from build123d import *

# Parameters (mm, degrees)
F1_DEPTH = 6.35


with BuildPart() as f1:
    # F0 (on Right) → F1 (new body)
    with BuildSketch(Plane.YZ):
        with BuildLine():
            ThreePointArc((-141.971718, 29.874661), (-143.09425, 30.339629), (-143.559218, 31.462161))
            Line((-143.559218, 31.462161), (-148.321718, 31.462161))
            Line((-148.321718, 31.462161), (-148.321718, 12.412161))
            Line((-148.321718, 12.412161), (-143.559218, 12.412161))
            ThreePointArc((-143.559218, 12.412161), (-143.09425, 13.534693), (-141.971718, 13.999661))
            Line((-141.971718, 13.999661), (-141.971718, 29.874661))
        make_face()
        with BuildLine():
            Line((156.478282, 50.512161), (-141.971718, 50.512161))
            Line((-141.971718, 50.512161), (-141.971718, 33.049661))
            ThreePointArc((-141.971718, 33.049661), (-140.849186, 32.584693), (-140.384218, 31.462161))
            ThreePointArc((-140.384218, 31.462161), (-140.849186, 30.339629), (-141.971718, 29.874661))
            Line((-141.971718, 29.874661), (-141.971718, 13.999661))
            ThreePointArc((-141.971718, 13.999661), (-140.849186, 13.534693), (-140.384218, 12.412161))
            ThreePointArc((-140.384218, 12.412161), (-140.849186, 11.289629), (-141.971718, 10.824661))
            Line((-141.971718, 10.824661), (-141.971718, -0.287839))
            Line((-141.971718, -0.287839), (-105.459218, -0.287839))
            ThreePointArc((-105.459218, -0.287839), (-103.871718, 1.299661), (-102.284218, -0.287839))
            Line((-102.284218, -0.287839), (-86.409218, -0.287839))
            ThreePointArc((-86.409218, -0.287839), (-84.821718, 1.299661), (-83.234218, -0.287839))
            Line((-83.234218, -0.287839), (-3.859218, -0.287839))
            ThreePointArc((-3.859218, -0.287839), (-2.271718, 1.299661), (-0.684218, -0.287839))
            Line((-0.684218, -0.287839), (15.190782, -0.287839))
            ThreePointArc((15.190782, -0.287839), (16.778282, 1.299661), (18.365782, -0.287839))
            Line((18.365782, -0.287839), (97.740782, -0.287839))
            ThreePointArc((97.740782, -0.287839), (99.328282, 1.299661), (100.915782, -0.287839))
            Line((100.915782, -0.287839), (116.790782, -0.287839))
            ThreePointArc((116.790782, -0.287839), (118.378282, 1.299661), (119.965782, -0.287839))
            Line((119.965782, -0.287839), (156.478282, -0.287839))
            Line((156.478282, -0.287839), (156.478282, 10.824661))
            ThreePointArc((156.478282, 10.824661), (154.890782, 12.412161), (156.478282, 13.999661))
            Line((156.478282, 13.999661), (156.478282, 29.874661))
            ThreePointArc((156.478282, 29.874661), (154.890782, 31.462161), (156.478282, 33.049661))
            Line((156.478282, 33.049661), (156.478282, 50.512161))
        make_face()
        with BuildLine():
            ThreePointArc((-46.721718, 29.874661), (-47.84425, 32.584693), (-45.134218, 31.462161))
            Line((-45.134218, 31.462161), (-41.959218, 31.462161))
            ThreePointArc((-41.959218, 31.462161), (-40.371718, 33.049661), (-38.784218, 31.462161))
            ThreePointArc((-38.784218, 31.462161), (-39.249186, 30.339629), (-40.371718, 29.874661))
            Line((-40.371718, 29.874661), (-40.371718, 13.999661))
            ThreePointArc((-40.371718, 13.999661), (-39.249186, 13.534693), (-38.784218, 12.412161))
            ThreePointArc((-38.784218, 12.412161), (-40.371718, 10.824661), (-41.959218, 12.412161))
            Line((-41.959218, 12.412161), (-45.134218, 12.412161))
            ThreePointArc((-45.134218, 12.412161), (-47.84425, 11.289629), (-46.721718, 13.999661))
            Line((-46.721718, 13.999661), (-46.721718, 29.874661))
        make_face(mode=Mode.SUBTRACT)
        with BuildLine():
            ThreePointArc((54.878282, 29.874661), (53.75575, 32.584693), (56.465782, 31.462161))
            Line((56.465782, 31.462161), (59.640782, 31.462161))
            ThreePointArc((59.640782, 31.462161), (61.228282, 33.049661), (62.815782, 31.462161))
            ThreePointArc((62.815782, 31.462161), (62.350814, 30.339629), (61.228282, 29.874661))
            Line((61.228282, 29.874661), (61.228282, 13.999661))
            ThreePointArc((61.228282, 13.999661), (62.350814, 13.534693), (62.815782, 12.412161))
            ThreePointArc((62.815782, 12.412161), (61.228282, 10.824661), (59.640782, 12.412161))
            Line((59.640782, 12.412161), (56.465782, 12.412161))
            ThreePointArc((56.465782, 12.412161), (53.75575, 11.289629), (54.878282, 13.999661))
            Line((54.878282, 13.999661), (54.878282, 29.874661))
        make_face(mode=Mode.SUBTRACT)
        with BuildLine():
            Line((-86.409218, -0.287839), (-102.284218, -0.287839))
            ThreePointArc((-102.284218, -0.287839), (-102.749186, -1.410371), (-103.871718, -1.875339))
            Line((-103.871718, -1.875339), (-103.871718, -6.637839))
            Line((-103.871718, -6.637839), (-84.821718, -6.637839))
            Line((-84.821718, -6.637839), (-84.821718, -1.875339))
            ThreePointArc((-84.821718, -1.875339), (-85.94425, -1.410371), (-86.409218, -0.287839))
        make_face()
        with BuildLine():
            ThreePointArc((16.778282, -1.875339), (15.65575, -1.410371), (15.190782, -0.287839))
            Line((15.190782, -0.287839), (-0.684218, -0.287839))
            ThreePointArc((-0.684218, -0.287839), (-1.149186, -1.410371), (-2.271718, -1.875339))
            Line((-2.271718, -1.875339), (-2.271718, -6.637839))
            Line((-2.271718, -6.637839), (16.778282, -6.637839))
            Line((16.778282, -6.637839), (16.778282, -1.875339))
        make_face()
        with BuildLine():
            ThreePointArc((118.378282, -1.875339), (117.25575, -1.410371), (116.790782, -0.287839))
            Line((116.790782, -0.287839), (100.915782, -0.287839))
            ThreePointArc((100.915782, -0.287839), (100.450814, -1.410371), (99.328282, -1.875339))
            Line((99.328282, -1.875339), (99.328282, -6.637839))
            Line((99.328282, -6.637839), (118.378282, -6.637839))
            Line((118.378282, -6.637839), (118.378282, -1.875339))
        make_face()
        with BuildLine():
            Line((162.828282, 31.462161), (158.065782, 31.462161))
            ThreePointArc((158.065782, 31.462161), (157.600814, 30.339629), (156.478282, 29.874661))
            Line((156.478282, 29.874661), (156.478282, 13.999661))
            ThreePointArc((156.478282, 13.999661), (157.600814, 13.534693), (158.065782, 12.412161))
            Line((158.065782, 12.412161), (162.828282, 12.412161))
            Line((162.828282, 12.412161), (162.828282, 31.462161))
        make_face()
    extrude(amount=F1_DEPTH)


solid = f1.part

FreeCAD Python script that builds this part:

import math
import FreeCAD as App
import Part
import Sketcher
Q = App.Units.Quantity

doc = App.newDocument("Part")
params = doc.addObject("Spreadsheet::Sheet", "Params")
for row, (alias, value) in enumerate([
    ("sketch1_radius", "0.0625 in"),
    ("sketch1_width", "0.75 in"),
    ("sketch1_width2", "11.75 in"),
    ("sketch1_width3", "0.1875 in"),
    ("sketch1_width4", "1.4375 in"),
    ("pad1_length", "0.25 in"),
], start=1):
    params.set(f"A{row}", alias)
    params.set(f"B{row}", "=" + value)
    params.setAlias(f"B{row}", alias)

body = doc.addObject("PartDesign::Body", "Body")

sketch1 = body.newObject("Sketcher::SketchObject", "Sketch")
sketch1.AttachmentSupport = (doc.getObject("YZ_Plane"), [""])
sketch1.MapMode = "FlatFace"
sketch1.addGeometry(Part.ArcOfCircle(Part.Circle(App.Vector(-142, 31.5, 0), App.Vector(0, 0, 1), 1.6), math.radians(-180), math.radians(-90)), False)
sketch1.addGeometry(Part.LineSegment(App.Vector(-143.6, 31.5, 0), App.Vector(-148.3, 31.5, 0)), False)
sketch1.addGeometry(Part.LineSegment(App.Vector(-148.3, 31.5, 0), App.Vector(-148.3, 12.4, 0)), False)
sketch1.addGeometry(Part.LineSegment(App.Vector(-148.3, 12.4, 0), App.Vector(-143.6, 12.4, 0)), False)
sketch1.addGeometry(Part.ArcOfCircle(Part.Circle(App.Vector(-142, 12.4, 0), App.Vector(0, 0, 1), 1.6), math.radians(90), math.radians(180)), False)
sketch1.addGeometry(Part.ArcOfCircle(Part.Circle(App.Vector(-142, 12.4, 0), App.Vector(0, 0, 1), 1.6), math.radians(0), math.radians(90)), False)
sketch1.addGeometry(Part.ArcOfCircle(Part.Circle(App.Vector(-142, 12.4, 0), App.Vector(0, 0, 1), 1.6), math.radians(-90), math.radians(0)), False)
sketch1.addGeometry(Part.LineSegment(App.Vector(-142, 10.8, 0), App.Vector(-142, -0.3, 0)), False)
sketch1.addGeometry(Part.LineSegment(App.Vector(-142, -0.3, 0), App.Vector(-105.5, -0.3, 0)), False)
sketch1.addGeometry(Part.ArcOfCircle(Part.Circle(App.Vector(-103.9, -0.3, 0), App.Vector(0, 0, 1), 1.6), math.radians(0), math.radians(180)), False)
sketch1.addGeometry(Part.ArcOfCircle(Part.Circle(App.Vector(-103.9, -0.3, 0), App.Vector(0, 0, 1), 1.6), math.radians(-90), math.radians(0)), False)
sketch1.addGeometry(Part.LineSegment(App.Vector(-103.9, -1.9, 0), App.Vector(-103.9, -6.6, 0)), False)
sketch1.addGeometry(Part.LineSegment(App.Vector(-103.9, -6.6, 0), App.Vector(-84.8, -6.6, 0)), False)
sketch1.addGeometry(Part.LineSegment(App.Vector(-84.8, -6.6, 0), App.Vector(-84.8, -1.9, 0)), False)
sketch1.addGeometry(Part.ArcOfCircle(Part.Circle(App.Vector(-84.8, -0.3, 0), App.Vector(0, 0, 1), 1.6), math.radians(-180), math.radians(-90)), False)
sketch1.addGeometry(Part.ArcOfCircle(Part.Circle(App.Vector(-84.8, -0.3, 0), App.Vector(0, 0, 1), 1.6), math.radians(0), math.radians(180)), False)
sketch1.addGeometry(Part.LineSegment(App.Vector(-83.2, -0.3, 0), App.Vector(-3.9, -0.3, 0)), False)
sketch1.addGeometry(Part.ArcOfCircle(Part.Circle(App.Vector(-2.3, -0.3, 0), App.Vector(0, 0, 1), 1.6), math.radians(0), math.radians(180)), False)
sketch1.addGeometry(Part.ArcOfCircle(Part.Circle(App.Vector(-2.3, -0.3, 0), App.Vector(0, 0, 1), 1.6), math.radians(-90), math.radians(0)), False)
sketch1.addGeometry(Part.LineSegment(App.Vector(-2.3, -1.9, 0), App.Vector(-2.3, -6.6, 0)), False)
sketch1.addGeometry(Part.LineSegment(App.Vector(-2.3, -6.6, 0), App.Vector(16.8, -6.6, 0)), False)
sketch1.addGeometry(Part.LineSegment(App.Vector(16.8, -6.6, 0), App.Vector(16.8, -1.9, 0)), False)
sketch1.addGeometry(Part.ArcOfCircle(Part.Circle(App.Vector(16.8, -0.3, 0), App.Vector(0, 0, 1), 1.6), math.radians(-180), math.radians(-90)), False)
sketch1.addGeometry(Part.ArcOfCircle(Part.Circle(App.Vector(16.8, -0.3, 0), App.Vector(0, 0, 1), 1.6), math.radians(0), math.radians(180)), False)
sketch1.addGeometry(Part.LineSegment(App.Vector(18.4, -0.3, 0), App.Vector(97.7, -0.3, 0)), False)
sketch1.addGeometry(Part.ArcOfCircle(Part.Circle(App.Vector(99.3, -0.3, 0), App.Vector(0, 0, 1), 1.6), math.radians(0), math.radians(180)), False)
sketch1.addGeometry(Part.ArcOfCircle(Part.Circle(App.Vector(99.3, -0.3, 0), App.Vector(0, 0, 1), 1.6), math.radians(-90), math.radians(0)), False)
sketch1.addGeometry(Part.LineSegment(App.Vector(99.3, -1.9, 0), App.Vector(99.3, -6.6, 0)), False)
sketch1.addGeometry(Part.LineSegment(App.Vector(99.3, -6.6, 0), App.Vector(118.4, -6.6, 0)), False)
sketch1.addGeometry(Part.LineSegment(App.Vector(118.4, -6.6, 0), App.Vector(118.4, -1.9, 0)), False)
sketch1.addGeometry(Part.ArcOfCircle(Part.Circle(App.Vector(118.4, -0.3, 0), App.Vector(0, 0, 1), 1.6), math.radians(-180), math.radians(-90)), False)
sketch1.addGeometry(Part.ArcOfCircle(Part.Circle(App.Vector(118.4, -0.3, 0), App.Vector(0, 0, 1), 1.6), math.radians(0), math.radians(180)), False)
sketch1.addGeometry(Part.LineSegment(App.Vector(120, -0.3, 0), App.Vector(156.5, -0.3, 0)), False)
sketch1.addGeometry(Part.LineSegment(App.Vector(156.5, -0.3, 0), App.Vector(156.5, 10.8, 0)), False)
sketch1.addGeometry(Part.ArcOfCircle(Part.Circle(App.Vector(156.5, 12.4, 0), App.Vector(0, 0, 1), 1.6), math.radians(90), math.radians(270)), False)
sketch1.addGeometry(Part.ArcOfCircle(Part.Circle(App.Vector(156.5, 12.4, 0), App.Vector(0, 0, 1), 1.6), math.radians(0), math.radians(90)), False)
sketch1.addGeometry(Part.LineSegment(App.Vector(158.1, 12.4, 0), App.Vector(162.8, 12.4, 0)), False)
sketch1.addGeometry(Part.LineSegment(App.Vector(162.8, 12.4, 0), App.Vector(162.8, 31.5, 0)), False)
sketch1.addGeometry(Part.LineSegment(App.Vector(162.8, 31.5, 0), App.Vector(158.1, 31.5, 0)), False)
sketch1.addGeometry(Part.ArcOfCircle(Part.Circle(App.Vector(156.5, 31.5, 0), App.Vector(0, 0, 1), 1.6), math.radians(-90), math.radians(0)), False)
sketch1.addGeometry(Part.ArcOfCircle(Part.Circle(App.Vector(156.5, 31.5, 0), App.Vector(0, 0, 1), 1.6), math.radians(90), math.radians(270)), False)
sketch1.addGeometry(Part.LineSegment(App.Vector(156.5, 33, 0), App.Vector(156.5, 50.5, 0)), False)
sketch1.addGeometry(Part.LineSegment(App.Vector(156.5, 50.5, 0), App.Vector(-142, 50.5, 0)), False)
sketch1.addGeometry(Part.LineSegment(App.Vector(-142, 50.5, 0), App.Vector(-142, 33, 0)), False)
sketch1.addGeometry(Part.ArcOfCircle(Part.Circle(App.Vector(-142, 31.5, 0), App.Vector(0, 0, 1), 1.6), math.radians(0), math.radians(90)), False)
sketch1.addGeometry(Part.ArcOfCircle(Part.Circle(App.Vector(-142, 31.5, 0), App.Vector(0, 0, 1), 1.6), math.radians(-90), math.radians(0)), False)
sketch1.addGeometry(Part.LineSegment(App.Vector(-46.7, 14, 0), App.Vector(-46.7, 29.9, 0)), False)
sketch1.addGeometry(Part.ArcOfCircle(Part.Circle(App.Vector(-46.7, 31.5, 0), App.Vector(0, 0, 1), 1.6), math.radians(0), math.radians(270)), False)
sketch1.addGeometry(Part.LineSegment(App.Vector(-45.1, 31.5, 0), App.Vector(-42, 31.5, 0)), False)
sketch1.addGeometry(Part.ArcOfCircle(Part.Circle(App.Vector(-40.4, 31.5, 0), App.Vector(0, 0, 1), 1.6), math.radians(0), math.radians(180)), False)
sketch1.addGeometry(Part.ArcOfCircle(Part.Circle(App.Vector(-40.4, 31.5, 0), App.Vector(0, 0, 1), 1.6), math.radians(-90), math.radians(0)), False)
sketch1.addGeometry(Part.LineSegment(App.Vector(-40.4, 29.9, 0), App.Vector(-40.4, 14, 0)), False)
sketch1.addGeometry(Part.ArcOfCircle(Part.Circle(App.Vector(-40.4, 12.4, 0), App.Vector(0, 0, 1), 1.6), math.radians(0), math.radians(90)), False)
sketch1.addGeometry(Part.ArcOfCircle(Part.Circle(App.Vector(-40.4, 12.4, 0), App.Vector(0, 0, 1), 1.6), math.radians(180), math.radians(360)), False)
sketch1.addGeometry(Part.LineSegment(App.Vector(-42, 12.4, 0), App.Vector(-45.1, 12.4, 0)), False)
sketch1.addGeometry(Part.ArcOfCircle(Part.Circle(App.Vector(-46.7, 12.4, 0), App.Vector(0, 0, 1), 1.6), math.radians(90), math.radians(360)), False)
sketch1.addGeometry(Part.LineSegment(App.Vector(54.9, 14, 0), App.Vector(54.9, 29.9, 0)), False)
sketch1.addGeometry(Part.ArcOfCircle(Part.Circle(App.Vector(54.9, 31.5, 0), App.Vector(0, 0, 1), 1.6), math.radians(0), math.radians(270)), False)
sketch1.addGeometry(Part.LineSegment(App.Vector(56.5, 31.5, 0), App.Vector(59.6, 31.5, 0)), False)
sketch1.addGeometry(Part.ArcOfCircle(Part.Circle(App.Vector(61.2, 31.5, 0), App.Vector(0, 0, 1), 1.6), math.radians(0), math.radians(180)), False)
sketch1.addGeometry(Part.ArcOfCircle(Part.Circle(App.Vector(61.2, 31.5, 0), App.Vector(0, 0, 1), 1.6), math.radians(-90), math.radians(0)), False)
sketch1.addGeometry(Part.LineSegment(App.Vector(61.2, 29.9, 0), App.Vector(61.2, 14, 0)), False)
sketch1.addGeometry(Part.ArcOfCircle(Part.Circle(App.Vector(61.2, 12.4, 0), App.Vector(0, 0, 1), 1.6), math.radians(0), math.radians(90)), False)
sketch1.addGeometry(Part.ArcOfCircle(Part.Circle(App.Vector(61.2, 12.4, 0), App.Vector(0, 0, 1), 1.6), math.radians(180), math.radians(360)), False)
sketch1.addGeometry(Part.LineSegment(App.Vector(59.6, 12.4, 0), App.Vector(56.5, 12.4, 0)), False)
sketch1.addGeometry(Part.ArcOfCircle(Part.Circle(App.Vector(54.9, 12.4, 0), App.Vector(0, 0, 1), 1.6), math.radians(90), math.radians(360)), False)
sketch1.addConstraint(Sketcher.Constraint("Coincident", 0, 1, 1, 1))
sketch1.addConstraint(Sketcher.Constraint("Coincident", 1, 2, 2, 1))
sketch1.addConstraint(Sketcher.Constraint("Coincident", 2, 2, 3, 1))
sketch1.addConstraint(Sketcher.Constraint("Coincident", 3, 2, 4, 2))
sketch1.addConstraint(Sketcher.Constraint("Tangent", 4, 1, 5, 2))
sketch1.addConstraint(Sketcher.Constraint("Tangent", 5, 1, 6, 2))
sketch1.addConstraint(Sketcher.Constraint("Coincident", 6, 1, 7, 1))
sketch1.addConstraint(Sketcher.Constraint("Coincident", 7, 2, 8, 1))
sketch1.addConstraint(Sketcher.Constraint("Coincident", 8, 2, 9, 2))
sketch1.addConstraint(Sketcher.Constraint("Tangent", 9, 1, 10, 2))
sketch1.addConstraint(Sketcher.Constraint("Coincident", 10, 1, 11, 1))
sketch1.addConstraint(Sketcher.Constraint("Coincident", 11, 2, 12, 1))
sketch1.addConstraint(Sketcher.Constraint("Coincident", 12, 2, 13, 1))
sketch1.addConstraint(Sketcher.Constraint("Coincident", 13, 2, 14, 2))
sketch1.addConstraint(Sketcher.Constraint("Tangent", 14, 1, 15, 2))
sketch1.addConstraint(Sketcher.Constraint("Coincident", 15, 1, 16, 1))
sketch1.addConstraint(Sketcher.Constraint("Coincident", 16, 2, 17, 2))
sketch1.addConstraint(Sketcher.Constraint("Tangent", 17, 1, 18, 2))
sketch1.addConstraint(Sketcher.Constraint("Coincident", 18, 1, 19, 1))
sketch1.addConstraint(Sketcher.Constraint("Coincident", 19, 2, 20, 1))
sketch1.addConstraint(Sketcher.Constraint("Coincident", 20, 2, 21, 1))
sketch1.addConstraint(Sketcher.Constraint("Coincident", 21, 2, 22, 2))
sketch1.addConstraint(Sketcher.Constraint("Tangent", 22, 1, 23, 2))
sketch1.addConstraint(Sketcher.Constraint("Coincident", 23, 1, 24, 1))
sketch1.addConstraint(Sketcher.Constraint("Coincident", 24, 2, 25, 2))
sketch1.addConstraint(Sketcher.Constraint("Tangent", 25, 1, 26, 2))
sketch1.addConstraint(Sketcher.Constraint("Coincident", 26, 1, 27, 1))
sketch1.addConstraint(Sketcher.Constraint("Coincident", 27, 2, 28, 1))
sketch1.addConstraint(Sketcher.Constraint("Coincident", 28, 2, 29, 1))
sketch1.addConstraint(Sketcher.Constraint("Coincident", 29, 2, 30, 2))
sketch1.addConstraint(Sketcher.Constraint("Tangent", 30, 1, 31, 2))
sketch1.addConstraint(Sketcher.Constraint("Coincident", 31, 1, 32, 1))
sketch1.addConstraint(Sketcher.Constraint("Coincident", 32, 2, 33, 1))
sketch1.addConstraint(Sketcher.Constraint("Coincident", 33, 2, 34, 2))
sketch1.addConstraint(Sketcher.Constraint("Tangent", 34, 1, 35, 2))
sketch1.addConstraint(Sketcher.Constraint("Coincident", 35, 1, 36, 1))
sketch1.addConstraint(Sketcher.Constraint("Coincident", 36, 2, 37, 1))
sketch1.addConstraint(Sketcher.Constraint("Coincident", 37, 2, 38, 1))
sketch1.addConstraint(Sketcher.Constraint("Coincident", 38, 2, 39, 2))
sketch1.addConstraint(Sketcher.Constraint("Tangent", 39, 1, 40, 2))
sketch1.addConstraint(Sketcher.Constraint("Coincident", 40, 1, 41, 1))
sketch1.addConstraint(Sketcher.Constraint("Coincident", 41, 2, 42, 1))
sketch1.addConstraint(Sketcher.Constraint("Coincident", 42, 2, 43, 1))
sketch1.addConstraint(Sketcher.Constraint("Coincident", 43, 2, 44, 2))
sketch1.addConstraint(Sketcher.Constraint("Tangent", 44, 1, 45, 2))
sketch1.addConstraint(Sketcher.Constraint("Tangent", 45, 1, 0, 2))
sketch1.addConstraint(Sketcher.Constraint("Coincident", 46, 2, 47, 2))
sketch1.addConstraint(Sketcher.Constraint("Coincident", 47, 1, 48, 1))
sketch1.addConstraint(Sketcher.Constraint("Coincident", 48, 2, 49, 2))
sketch1.addConstraint(Sketcher.Constraint("Tangent", 49, 1, 50, 2))
sketch1.addConstraint(Sketcher.Constraint("Coincident", 50, 1, 51, 1))
sketch1.addConstraint(Sketcher.Constraint("Coincident", 51, 2, 52, 2))
sketch1.addConstraint(Sketcher.Constraint("Tangent", 52, 1, 53, 2))
sketch1.addConstraint(Sketcher.Constraint("Coincident", 53, 1, 54, 1))
sketch1.addConstraint(Sketcher.Constraint("Coincident", 54, 2, 55, 2))
sketch1.addConstraint(Sketcher.Constraint("Coincident", 55, 1, 46, 1))
sketch1.addConstraint(Sketcher.Constraint("Coincident", 56, 2, 57, 2))
sketch1.addConstraint(Sketcher.Constraint("Coincident", 57, 1, 58, 1))
sketch1.addConstraint(Sketcher.Constraint("Coincident", 58, 2, 59, 2))
sketch1.addConstraint(Sketcher.Constraint("Tangent", 59, 1, 60, 2))
sketch1.addConstraint(Sketcher.Constraint("Coincident", 60, 1, 61, 1))
sketch1.addConstraint(Sketcher.Constraint("Coincident", 61, 2, 62, 2))
sketch1.addConstraint(Sketcher.Constraint("Tangent", 62, 1, 63, 2))
sketch1.addConstraint(Sketcher.Constraint("Coincident", 63, 1, 64, 1))
sketch1.addConstraint(Sketcher.Constraint("Coincident", 64, 2, 65, 2))
sketch1.addConstraint(Sketcher.Constraint("Coincident", 65, 1, 56, 1))
sketch1.addConstraint(Sketcher.Constraint("Horizontal", 1))
sketch1.addConstraint(Sketcher.Constraint("Vertical", 2))
sketch1.addConstraint(Sketcher.Constraint("Horizontal", 3))
sketch1.addConstraint(Sketcher.Constraint("Vertical", 7))
sketch1.addConstraint(Sketcher.Constraint("Horizontal", 8))
sketch1.addConstraint(Sketcher.Constraint("Vertical", 11))
sketch1.addConstraint(Sketcher.Constraint("Horizontal", 12))
sketch1.addConstraint(Sketcher.Constraint("Vertical", 13))
sketch1.addConstraint(Sketcher.Constraint("Horizontal", 16))
sketch1.addConstraint(Sketcher.Constraint("Vertical", 19))
sketch1.addConstraint(Sketcher.Constraint("Horizontal", 20))
sketch1.addConstraint(Sketcher.Constraint("Vertical", 21))
sketch1.addConstraint(Sketcher.Constraint("Horizontal", 24))
sketch1.addConstraint(Sketcher.Constraint("Vertical", 27))
sketch1.addConstraint(Sketcher.Constraint("Horizontal", 28))
sketch1.addConstraint(Sketcher.Constraint("Vertical", 29))
sketch1.addConstraint(Sketcher.Constraint("Horizontal", 32))
sketch1.addConstraint(Sketcher.Constraint("Vertical", 33))
sketch1.addConstraint(Sketcher.Constraint("Horizontal", 36))
sketch1.addConstraint(Sketcher.Constraint("Vertical", 37))
sketch1.addConstraint(Sketcher.Constraint("Horizontal", 38))
sketch1.addConstraint(Sketcher.Constraint("Vertical", 41))
sketch1.addConstraint(Sketcher.Constraint("Horizontal", 42))
sketch1.addConstraint(Sketcher.Constraint("Vertical", 43))
sketch1.addConstraint(Sketcher.Constraint("Vertical", 46))
sketch1.addConstraint(Sketcher.Constraint("Horizontal", 48))
sketch1.addConstraint(Sketcher.Constraint("Vertical", 51))
sketch1.addConstraint(Sketcher.Constraint("Horizontal", 54))
sketch1.addConstraint(Sketcher.Constraint("Vertical", 56))
sketch1.addConstraint(Sketcher.Constraint("Horizontal", 58))
sketch1.addConstraint(Sketcher.Constraint("Vertical", 61))
sketch1.addConstraint(Sketcher.Constraint("Horizontal", 64))
sketch1.addConstraint(Sketcher.Constraint("Coincident", 6, 3, 4, 3))
sketch1.addConstraint(Sketcher.Constraint("Coincident", 44, 3, 0, 3))
sketch1.addConstraint(Sketcher.Constraint("Equal", 0, 4))
sketch1.addConstraint(Sketcher.Constraint("Equal", 6, 9))
sketch1.addConstraint(Sketcher.Constraint("Equal", 9, 10))
sketch1.addConstraint(Sketcher.Constraint("Equal", 10, 14))
sketch1.addConstraint(Sketcher.Constraint("Equal", 14, 15))
sketch1.addConstraint(Sketcher.Constraint("Equal", 15, 17))
sketch1.addConstraint(Sketcher.Constraint("Equal", 17, 18))
sketch1.addConstraint(Sketcher.Constraint("Equal", 18, 22))
sketch1.addConstraint(Sketcher.Constraint("Equal", 22, 23))
sketch1.addConstraint(Sketcher.Constraint("Equal", 23, 25))
sketch1.addConstraint(Sketcher.Constraint("Equal", 25, 26))
sketch1.addConstraint(Sketcher.Constraint("Equal", 26, 30))
sketch1.addConstraint(Sketcher.Constraint("Equal", 30, 31))
sketch1.addConstraint(Sketcher.Constraint("Equal", 31, 34))
sketch1.addConstraint(Sketcher.Constraint("Equal", 34, 35))
sketch1.addConstraint(Sketcher.Constraint("Equal", 35, 39))
sketch1.addConstraint(Sketcher.Constraint("Equal", 39, 40))
sketch1.addConstraint(Sketcher.Constraint("Equal", 45, 47))
sketch1.addConstraint(Sketcher.Constraint("Equal", 47, 49))
sketch1.addConstraint(Sketcher.Constraint("Equal", 49, 50))
sketch1.addConstraint(Sketcher.Constraint("Equal", 50, 52))
sketch1.addConstraint(Sketcher.Constraint("Equal", 52, 53))
sketch1.addConstraint(Sketcher.Constraint("Equal", 53, 55))
sketch1.addConstraint(Sketcher.Constraint("Equal", 55, 57))
sketch1.addConstraint(Sketcher.Constraint("Equal", 57, 59))
sketch1.addConstraint(Sketcher.Constraint("Equal", 59, 60))
sketch1.addConstraint(Sketcher.Constraint("Equal", 60, 62))
sketch1.addConstraint(Sketcher.Constraint("Equal", 62, 63))
sketch1.addConstraint(Sketcher.Constraint("Equal", 63, 65))
sketch1.addConstraint(Sketcher.Constraint("Horizontal", 10, 3, 14, 3))
sketch1.addConstraint(Sketcher.Constraint("Horizontal", 15, 3, 17, 3))
sketch1.addConstraint(Sketcher.Constraint("Horizontal", 18, 3, 22, 3))
sketch1.addConstraint(Sketcher.Constraint("Horizontal", 23, 3, 25, 3))
sketch1.addConstraint(Sketcher.Constraint("Horizontal", 26, 3, 30, 3))
sketch1.addConstraint(Sketcher.Constraint("Horizontal", 6, 3, 34, 3))
sketch1.addConstraint(Sketcher.Constraint("Horizontal", 0, 3, 39, 3))
sketch1.addConstraint(Sketcher.Constraint("Horizontal", 45, 3, 47, 3))
sketch1.addConstraint(Sketcher.Constraint("Horizontal", 47, 3, 49, 3))
sketch1.addConstraint(Sketcher.Constraint("Horizontal", 35, 3, 52, 3))
sketch1.addConstraint(Sketcher.Constraint("Horizontal", 53, 3, 55, 3))
sketch1.addConstraint(Sketcher.Constraint("Horizontal", 50, 3, 57, 3))
sketch1.addConstraint(Sketcher.Constraint("Horizontal", 57, 3, 59, 3))
sketch1.addConstraint(Sketcher.Constraint("Horizontal", 55, 3, 62, 3))
sketch1.addConstraint(Sketcher.Constraint("Horizontal", 63, 3, 65, 3))
sketch1.addConstraint(Sketcher.Constraint("Horizontal", 60, 3, 0, 1))
sketch1.addConstraint(Sketcher.Constraint("Horizontal", 65, 3, 2, 2))
sketch1.addConstraint(Sketcher.Constraint("Horizontal", 3, 2, 5, 1))
sketch1.addConstraint(Sketcher.Constraint("Horizontal", 31, 3, 7, 2))
sketch1.addConstraint(Sketcher.Constraint("Horizontal", 8, 2, 9, 1))
sketch1.addConstraint(Sketcher.Constraint("Horizontal", 9, 1, 14, 1))
sketch1.addConstraint(Sketcher.Constraint("Horizontal", 14, 1, 15, 1))
sketch1.addConstraint(Sketcher.Constraint("Horizontal", 16, 2, 17, 1))
sketch1.addConstraint(Sketcher.Constraint("Horizontal", 12, 2, 19, 2))
sketch1.addConstraint(Sketcher.Constraint("Horizontal", 17, 1, 22, 1))
sketch1.addConstraint(Sketcher.Constraint("Horizontal", 22, 1, 23, 1))
sketch1.addConstraint(Sketcher.Constraint("Horizontal", 24, 2, 25, 1))
sketch1.addConstraint(Sketcher.Constraint("Horizontal", 20, 2, 27, 2))
sketch1.addConstraint(Sketcher.Constraint("Horizontal", 25, 1, 30, 1))
sketch1.addConstraint(Sketcher.Constraint("Horizontal", 30, 1, 31, 1))
sketch1.addConstraint(Sketcher.Constraint("Horizontal", 5, 1, 35, 1))
sketch1.addConstraint(Sketcher.Constraint("Horizontal", 1, 2, 37, 2))
sketch1.addConstraint(Sketcher.Constraint("Horizontal", 38, 2, 44, 1))
sketch1.addConstraint(Sketcher.Constraint("Horizontal", 44, 1, 47, 1))
sketch1.addConstraint(Sketcher.Constraint("Horizontal", 48, 2, 49, 1))
sketch1.addConstraint(Sketcher.Constraint("Horizontal", 36, 2, 52, 1))
sketch1.addConstraint(Sketcher.Constraint("Horizontal", 52, 1, 53, 1))
sketch1.addConstraint(Sketcher.Constraint("Horizontal", 49, 1, 57, 1))
sketch1.addConstraint(Sketcher.Constraint("Horizontal", 58, 2, 59, 1))
sketch1.addConstraint(Sketcher.Constraint("Horizontal", 54, 2, 62, 1))
sketch1.addConstraint(Sketcher.Constraint("Horizontal", 62, 1, 63, 1))
sketch1.addConstraint(Sketcher.Constraint("Vertical", 0, 3, 4, 3))
sketch1.addConstraint(Sketcher.Constraint("Vertical", 35, 3, 39, 3))
sketch1.addConstraint(Sketcher.Constraint("Vertical", 50, 3, 52, 3))
sketch1.addConstraint(Sketcher.Constraint("Vertical", 47, 3, 55, 3))
sketch1.addConstraint(Sketcher.Constraint("Vertical", 60, 3, 62, 3))
sketch1.addConstraint(Sketcher.Constraint("Vertical", 57, 3, 65, 3))
sketch1.addConstraint(Sketcher.Constraint("Vertical", 45, 3, 4, 1))
sketch1.addConstraint(Sketcher.Constraint("Vertical", 4, 1, 6, 1))
sketch1.addConstraint(Sketcher.Constraint("Vertical", 9, 3, 10, 1))
sketch1.addConstraint(Sketcher.Constraint("Vertical", 15, 3, 12, 2))
sketch1.addConstraint(Sketcher.Constraint("Vertical", 17, 3, 18, 1))
sketch1.addConstraint(Sketcher.Constraint("Vertical", 23, 3, 20, 2))
sketch1.addConstraint(Sketcher.Constraint("Vertical", 25, 3, 26, 1))
sketch1.addConstraint(Sketcher.Constraint("Vertical", 31, 3, 28, 2))
sketch1.addConstraint(Sketcher.Constraint("Vertical", 40, 3, 32, 2))
sketch1.addConstraint(Sketcher.Constraint("Vertical", 33, 2, 34, 1))
sketch1.addConstraint(Sketcher.Constraint("Vertical", 34, 1, 39, 1))
sketch1.addConstraint(Sketcher.Constraint("Vertical", 39, 1, 40, 1))
sketch1.addConstraint(Sketcher.Constraint("Vertical", 7, 2, 42, 2))
sketch1.addConstraint(Sketcher.Constraint("Vertical", 43, 2, 45, 1))
sketch1.addConstraint(Sketcher.Constraint("Vertical", 55, 3, 46, 2))
sketch1.addConstraint(Sketcher.Constraint("Vertical", 53, 3, 50, 1))
sketch1.addConstraint(Sketcher.Constraint("Vertical", 65, 3, 56, 2))
sketch1.addConstraint(Sketcher.Constraint("Vertical", 63, 3, 60, 1))
sketch1.addConstraint(Sketcher.Constraint("Equal", 12, 20))
sketch1.addConstraint(Sketcher.Constraint("Equal", 16, 24))
sketch1.addConstraint(Sketcher.Constraint("Equal", 20, 28))
sketch1.addConstraint(Sketcher.Constraint("Equal", 8, 32))
sketch1.addConstraint(Sketcher.Constraint("Equal", 3, 36))
sketch1.addConstraint(Sketcher.Constraint("Equal", 54, 58))
sketch1.addConstraint(Sketcher.Constraint("Equal", 28, 2))
sketch1.addConstraint(Sketcher.Constraint("Equal", 38, 11))
sketch1.addConstraint(Sketcher.Constraint("Radius", 0, Q("0.0625 in")))
sketch1.addConstraint(Sketcher.Constraint("DistanceX", 12, 1, 12, 2, Q("0.75 in")))
sketch1.addConstraint(Sketcher.Constraint("DistanceX", 42, 2, 42, 1, Q("11.75 in")))
sketch1.addConstraint(Sketcher.Constraint("DistanceX", 1, 2, 1, 1, Q("0.1875 in")))
sketch1.addConstraint(Sketcher.Constraint("DistanceX", 8, 1, 8, 2, Q("1.4375 in")))
sketch1.addConstraint(Sketcher.Constraint("DistanceX", 48, 1, 48, 2, Q("0.125 in")))
sketch1.addConstraint(Sketcher.Constraint("DistanceY", 7, 2, 7, 1, Q("0.4375 in")))
sketch1.addConstraint(Sketcher.Constraint("DistanceY", 41, 1, 41, 2, Q("0.6875 in")))
sketch1.addConstraint(Sketcher.Constraint("DistanceY", -1, 1, 0, 3, Q("31.462161 mm")))
sketch1.addConstraint(Sketcher.Constraint("DistanceX", 5, 3, -1, 1, Q("141.971718 mm")))
sketch1.addConstraint(Sketcher.Constraint("DistanceX", 50, 3, -1, 1, Q("40.371718 mm")))
sketch1.addConstraint(Sketcher.Constraint("DistanceX", -1, 1, 60, 3, Q("61.228282 mm")))
sketch1.setExpression("Constraints[202]", "Params.sketch1_radius")
sketch1.setExpression("Constraints[203]", "Params.sketch1_width")
sketch1.setExpression("Constraints[204]", "Params.sketch1_width2")
sketch1.setExpression("Constraints[205]", "Params.sketch1_width3")
sketch1.setExpression("Constraints[206]", "Params.sketch1_width4")
pad1 = body.newObject("PartDesign::Pad", "Pad")
pad1.Profile = sketch1
pad1.setExpression("Length", "Params.pad1_length")

doc.recompute()
